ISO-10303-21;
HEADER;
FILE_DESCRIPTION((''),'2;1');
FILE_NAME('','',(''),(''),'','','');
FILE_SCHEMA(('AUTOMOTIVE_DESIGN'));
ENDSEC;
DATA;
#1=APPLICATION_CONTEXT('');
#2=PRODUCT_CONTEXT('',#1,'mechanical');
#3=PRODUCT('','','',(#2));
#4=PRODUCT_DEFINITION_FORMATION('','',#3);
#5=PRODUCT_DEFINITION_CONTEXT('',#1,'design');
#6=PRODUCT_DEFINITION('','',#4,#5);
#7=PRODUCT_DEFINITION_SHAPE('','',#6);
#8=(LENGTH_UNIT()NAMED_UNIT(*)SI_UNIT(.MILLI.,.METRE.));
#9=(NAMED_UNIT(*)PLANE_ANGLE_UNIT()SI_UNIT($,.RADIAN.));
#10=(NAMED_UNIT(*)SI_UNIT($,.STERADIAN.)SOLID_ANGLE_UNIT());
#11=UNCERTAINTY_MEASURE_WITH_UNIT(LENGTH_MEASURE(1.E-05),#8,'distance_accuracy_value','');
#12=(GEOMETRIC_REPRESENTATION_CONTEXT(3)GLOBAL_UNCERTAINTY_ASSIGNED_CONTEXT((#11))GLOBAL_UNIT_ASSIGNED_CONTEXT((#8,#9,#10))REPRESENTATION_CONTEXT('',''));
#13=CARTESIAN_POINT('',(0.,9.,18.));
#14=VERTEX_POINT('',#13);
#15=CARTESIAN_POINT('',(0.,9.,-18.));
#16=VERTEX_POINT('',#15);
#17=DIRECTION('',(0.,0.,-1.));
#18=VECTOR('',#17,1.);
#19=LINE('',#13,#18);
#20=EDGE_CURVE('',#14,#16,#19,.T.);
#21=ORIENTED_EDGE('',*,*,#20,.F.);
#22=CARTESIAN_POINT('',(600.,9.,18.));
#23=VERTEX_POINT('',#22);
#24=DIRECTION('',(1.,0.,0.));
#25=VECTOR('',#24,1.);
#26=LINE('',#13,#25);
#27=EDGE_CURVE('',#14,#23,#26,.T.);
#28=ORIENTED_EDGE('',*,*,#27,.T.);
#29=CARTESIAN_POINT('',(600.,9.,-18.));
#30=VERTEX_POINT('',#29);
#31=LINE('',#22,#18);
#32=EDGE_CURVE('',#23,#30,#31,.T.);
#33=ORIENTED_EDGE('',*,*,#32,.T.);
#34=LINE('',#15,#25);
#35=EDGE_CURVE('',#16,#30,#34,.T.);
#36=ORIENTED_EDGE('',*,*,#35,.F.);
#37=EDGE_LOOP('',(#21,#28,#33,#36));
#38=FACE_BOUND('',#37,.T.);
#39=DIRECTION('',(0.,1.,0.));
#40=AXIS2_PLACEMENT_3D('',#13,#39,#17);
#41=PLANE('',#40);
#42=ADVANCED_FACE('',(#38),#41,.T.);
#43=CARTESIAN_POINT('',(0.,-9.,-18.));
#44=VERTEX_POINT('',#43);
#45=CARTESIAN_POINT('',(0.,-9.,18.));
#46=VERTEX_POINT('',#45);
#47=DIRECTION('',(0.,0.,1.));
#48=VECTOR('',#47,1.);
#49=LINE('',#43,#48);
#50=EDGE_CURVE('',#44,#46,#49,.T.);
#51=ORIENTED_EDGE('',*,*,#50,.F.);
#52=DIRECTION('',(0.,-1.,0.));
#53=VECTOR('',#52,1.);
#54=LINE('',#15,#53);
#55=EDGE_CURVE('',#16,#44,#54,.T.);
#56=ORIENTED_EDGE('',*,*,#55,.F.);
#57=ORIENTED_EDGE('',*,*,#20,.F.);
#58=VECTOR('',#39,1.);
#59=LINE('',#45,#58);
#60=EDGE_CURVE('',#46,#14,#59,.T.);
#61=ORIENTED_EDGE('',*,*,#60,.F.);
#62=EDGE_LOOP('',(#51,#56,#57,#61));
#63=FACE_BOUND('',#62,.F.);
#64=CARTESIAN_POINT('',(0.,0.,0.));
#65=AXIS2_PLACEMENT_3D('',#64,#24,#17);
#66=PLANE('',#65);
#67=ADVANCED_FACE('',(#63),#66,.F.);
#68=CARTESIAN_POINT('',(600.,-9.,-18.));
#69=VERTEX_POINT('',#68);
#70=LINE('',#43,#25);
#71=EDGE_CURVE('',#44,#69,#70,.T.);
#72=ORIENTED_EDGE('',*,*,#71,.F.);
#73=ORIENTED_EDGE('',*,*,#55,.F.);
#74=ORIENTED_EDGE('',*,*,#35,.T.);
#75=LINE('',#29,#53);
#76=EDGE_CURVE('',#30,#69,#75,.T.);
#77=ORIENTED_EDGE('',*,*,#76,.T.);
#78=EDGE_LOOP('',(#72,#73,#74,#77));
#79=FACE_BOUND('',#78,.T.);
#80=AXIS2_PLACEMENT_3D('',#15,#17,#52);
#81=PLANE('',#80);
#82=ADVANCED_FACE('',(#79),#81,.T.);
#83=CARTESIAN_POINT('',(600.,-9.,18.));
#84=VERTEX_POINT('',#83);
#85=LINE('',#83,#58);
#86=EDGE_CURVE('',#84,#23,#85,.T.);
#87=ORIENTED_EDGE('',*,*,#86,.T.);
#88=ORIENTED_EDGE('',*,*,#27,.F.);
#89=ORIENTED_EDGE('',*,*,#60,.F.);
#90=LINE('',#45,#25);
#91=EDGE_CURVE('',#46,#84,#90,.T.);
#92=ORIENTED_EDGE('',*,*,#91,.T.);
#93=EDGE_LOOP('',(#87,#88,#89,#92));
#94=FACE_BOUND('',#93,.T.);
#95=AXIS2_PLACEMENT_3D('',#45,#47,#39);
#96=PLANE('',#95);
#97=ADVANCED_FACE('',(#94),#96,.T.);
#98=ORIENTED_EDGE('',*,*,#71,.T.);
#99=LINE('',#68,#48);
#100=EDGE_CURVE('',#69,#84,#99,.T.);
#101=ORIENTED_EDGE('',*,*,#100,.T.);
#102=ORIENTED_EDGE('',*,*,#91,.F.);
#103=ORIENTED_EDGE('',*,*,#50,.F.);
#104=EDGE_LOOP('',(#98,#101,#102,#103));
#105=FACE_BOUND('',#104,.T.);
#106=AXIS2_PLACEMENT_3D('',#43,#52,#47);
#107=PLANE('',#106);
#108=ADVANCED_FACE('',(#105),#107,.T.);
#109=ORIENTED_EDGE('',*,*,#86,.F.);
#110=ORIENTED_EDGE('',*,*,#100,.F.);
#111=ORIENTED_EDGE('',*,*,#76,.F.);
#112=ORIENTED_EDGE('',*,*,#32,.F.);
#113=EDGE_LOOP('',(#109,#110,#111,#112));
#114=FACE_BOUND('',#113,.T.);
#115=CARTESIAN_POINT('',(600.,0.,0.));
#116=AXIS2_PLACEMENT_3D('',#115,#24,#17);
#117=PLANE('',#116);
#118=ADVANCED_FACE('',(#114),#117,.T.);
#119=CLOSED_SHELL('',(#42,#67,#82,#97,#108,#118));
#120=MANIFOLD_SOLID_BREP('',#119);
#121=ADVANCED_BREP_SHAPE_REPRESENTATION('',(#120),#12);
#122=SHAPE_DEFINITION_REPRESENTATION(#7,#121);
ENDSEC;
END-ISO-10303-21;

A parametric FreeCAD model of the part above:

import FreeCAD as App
import Part
import Sketcher
from FreeCAD import Vector


def add_polygon(sketch, points):
    """Adds a closed chain of lines whose ends are joined by coincident constraints."""
    first, n = sketch.GeometryCount, len(points)
    for a, b in zip(points, points[1:] + points[:1]):
        sketch.addGeometry(Part.LineSegment(App.Vector(*a, 0), App.Vector(*b, 0)), False)
    for i in range(n):
        sketch.addConstraint(Sketcher.Constraint("Coincident", first + i, 2, first + (i + 1) % n, 1))

doc = App.newDocument("Part")
body = doc.addObject("PartDesign::Body", "Body")

# Sketch on YZ plane
sketch1 = body.newObject("Sketcher::SketchObject", "Sketch")
sketch1.AttachmentSupport = (doc.getObject("YZ_Plane"), [""])
sketch1.MapMode = "FlatFace"
add_polygon(sketch1, [(9, -18), (9, 18), (-9, 18), (-9, -18)])  # lines 0-3
sketch1.addConstraint([
    Sketcher.Constraint("Vertical", 0),
    Sketcher.Constraint("Horizontal", 1),
    Sketcher.Constraint("Vertical", 2),
    Sketcher.Constraint("Horizontal", 3),
    Sketcher.Constraint("Symmetric", 0, 2, 2, 2, -1, 1),
    Sketcher.Constraint("DistanceX", 1, 2, 1, 1, 18.0),
    Sketcher.Constraint("DistanceY", 0, 1, 0, 2, 36.0),
])
pad1 = body.newObject("PartDesign::Pad", "Pad")
pad1.Profile = sketch1
pad1.Length = 600

doc.recompute()
